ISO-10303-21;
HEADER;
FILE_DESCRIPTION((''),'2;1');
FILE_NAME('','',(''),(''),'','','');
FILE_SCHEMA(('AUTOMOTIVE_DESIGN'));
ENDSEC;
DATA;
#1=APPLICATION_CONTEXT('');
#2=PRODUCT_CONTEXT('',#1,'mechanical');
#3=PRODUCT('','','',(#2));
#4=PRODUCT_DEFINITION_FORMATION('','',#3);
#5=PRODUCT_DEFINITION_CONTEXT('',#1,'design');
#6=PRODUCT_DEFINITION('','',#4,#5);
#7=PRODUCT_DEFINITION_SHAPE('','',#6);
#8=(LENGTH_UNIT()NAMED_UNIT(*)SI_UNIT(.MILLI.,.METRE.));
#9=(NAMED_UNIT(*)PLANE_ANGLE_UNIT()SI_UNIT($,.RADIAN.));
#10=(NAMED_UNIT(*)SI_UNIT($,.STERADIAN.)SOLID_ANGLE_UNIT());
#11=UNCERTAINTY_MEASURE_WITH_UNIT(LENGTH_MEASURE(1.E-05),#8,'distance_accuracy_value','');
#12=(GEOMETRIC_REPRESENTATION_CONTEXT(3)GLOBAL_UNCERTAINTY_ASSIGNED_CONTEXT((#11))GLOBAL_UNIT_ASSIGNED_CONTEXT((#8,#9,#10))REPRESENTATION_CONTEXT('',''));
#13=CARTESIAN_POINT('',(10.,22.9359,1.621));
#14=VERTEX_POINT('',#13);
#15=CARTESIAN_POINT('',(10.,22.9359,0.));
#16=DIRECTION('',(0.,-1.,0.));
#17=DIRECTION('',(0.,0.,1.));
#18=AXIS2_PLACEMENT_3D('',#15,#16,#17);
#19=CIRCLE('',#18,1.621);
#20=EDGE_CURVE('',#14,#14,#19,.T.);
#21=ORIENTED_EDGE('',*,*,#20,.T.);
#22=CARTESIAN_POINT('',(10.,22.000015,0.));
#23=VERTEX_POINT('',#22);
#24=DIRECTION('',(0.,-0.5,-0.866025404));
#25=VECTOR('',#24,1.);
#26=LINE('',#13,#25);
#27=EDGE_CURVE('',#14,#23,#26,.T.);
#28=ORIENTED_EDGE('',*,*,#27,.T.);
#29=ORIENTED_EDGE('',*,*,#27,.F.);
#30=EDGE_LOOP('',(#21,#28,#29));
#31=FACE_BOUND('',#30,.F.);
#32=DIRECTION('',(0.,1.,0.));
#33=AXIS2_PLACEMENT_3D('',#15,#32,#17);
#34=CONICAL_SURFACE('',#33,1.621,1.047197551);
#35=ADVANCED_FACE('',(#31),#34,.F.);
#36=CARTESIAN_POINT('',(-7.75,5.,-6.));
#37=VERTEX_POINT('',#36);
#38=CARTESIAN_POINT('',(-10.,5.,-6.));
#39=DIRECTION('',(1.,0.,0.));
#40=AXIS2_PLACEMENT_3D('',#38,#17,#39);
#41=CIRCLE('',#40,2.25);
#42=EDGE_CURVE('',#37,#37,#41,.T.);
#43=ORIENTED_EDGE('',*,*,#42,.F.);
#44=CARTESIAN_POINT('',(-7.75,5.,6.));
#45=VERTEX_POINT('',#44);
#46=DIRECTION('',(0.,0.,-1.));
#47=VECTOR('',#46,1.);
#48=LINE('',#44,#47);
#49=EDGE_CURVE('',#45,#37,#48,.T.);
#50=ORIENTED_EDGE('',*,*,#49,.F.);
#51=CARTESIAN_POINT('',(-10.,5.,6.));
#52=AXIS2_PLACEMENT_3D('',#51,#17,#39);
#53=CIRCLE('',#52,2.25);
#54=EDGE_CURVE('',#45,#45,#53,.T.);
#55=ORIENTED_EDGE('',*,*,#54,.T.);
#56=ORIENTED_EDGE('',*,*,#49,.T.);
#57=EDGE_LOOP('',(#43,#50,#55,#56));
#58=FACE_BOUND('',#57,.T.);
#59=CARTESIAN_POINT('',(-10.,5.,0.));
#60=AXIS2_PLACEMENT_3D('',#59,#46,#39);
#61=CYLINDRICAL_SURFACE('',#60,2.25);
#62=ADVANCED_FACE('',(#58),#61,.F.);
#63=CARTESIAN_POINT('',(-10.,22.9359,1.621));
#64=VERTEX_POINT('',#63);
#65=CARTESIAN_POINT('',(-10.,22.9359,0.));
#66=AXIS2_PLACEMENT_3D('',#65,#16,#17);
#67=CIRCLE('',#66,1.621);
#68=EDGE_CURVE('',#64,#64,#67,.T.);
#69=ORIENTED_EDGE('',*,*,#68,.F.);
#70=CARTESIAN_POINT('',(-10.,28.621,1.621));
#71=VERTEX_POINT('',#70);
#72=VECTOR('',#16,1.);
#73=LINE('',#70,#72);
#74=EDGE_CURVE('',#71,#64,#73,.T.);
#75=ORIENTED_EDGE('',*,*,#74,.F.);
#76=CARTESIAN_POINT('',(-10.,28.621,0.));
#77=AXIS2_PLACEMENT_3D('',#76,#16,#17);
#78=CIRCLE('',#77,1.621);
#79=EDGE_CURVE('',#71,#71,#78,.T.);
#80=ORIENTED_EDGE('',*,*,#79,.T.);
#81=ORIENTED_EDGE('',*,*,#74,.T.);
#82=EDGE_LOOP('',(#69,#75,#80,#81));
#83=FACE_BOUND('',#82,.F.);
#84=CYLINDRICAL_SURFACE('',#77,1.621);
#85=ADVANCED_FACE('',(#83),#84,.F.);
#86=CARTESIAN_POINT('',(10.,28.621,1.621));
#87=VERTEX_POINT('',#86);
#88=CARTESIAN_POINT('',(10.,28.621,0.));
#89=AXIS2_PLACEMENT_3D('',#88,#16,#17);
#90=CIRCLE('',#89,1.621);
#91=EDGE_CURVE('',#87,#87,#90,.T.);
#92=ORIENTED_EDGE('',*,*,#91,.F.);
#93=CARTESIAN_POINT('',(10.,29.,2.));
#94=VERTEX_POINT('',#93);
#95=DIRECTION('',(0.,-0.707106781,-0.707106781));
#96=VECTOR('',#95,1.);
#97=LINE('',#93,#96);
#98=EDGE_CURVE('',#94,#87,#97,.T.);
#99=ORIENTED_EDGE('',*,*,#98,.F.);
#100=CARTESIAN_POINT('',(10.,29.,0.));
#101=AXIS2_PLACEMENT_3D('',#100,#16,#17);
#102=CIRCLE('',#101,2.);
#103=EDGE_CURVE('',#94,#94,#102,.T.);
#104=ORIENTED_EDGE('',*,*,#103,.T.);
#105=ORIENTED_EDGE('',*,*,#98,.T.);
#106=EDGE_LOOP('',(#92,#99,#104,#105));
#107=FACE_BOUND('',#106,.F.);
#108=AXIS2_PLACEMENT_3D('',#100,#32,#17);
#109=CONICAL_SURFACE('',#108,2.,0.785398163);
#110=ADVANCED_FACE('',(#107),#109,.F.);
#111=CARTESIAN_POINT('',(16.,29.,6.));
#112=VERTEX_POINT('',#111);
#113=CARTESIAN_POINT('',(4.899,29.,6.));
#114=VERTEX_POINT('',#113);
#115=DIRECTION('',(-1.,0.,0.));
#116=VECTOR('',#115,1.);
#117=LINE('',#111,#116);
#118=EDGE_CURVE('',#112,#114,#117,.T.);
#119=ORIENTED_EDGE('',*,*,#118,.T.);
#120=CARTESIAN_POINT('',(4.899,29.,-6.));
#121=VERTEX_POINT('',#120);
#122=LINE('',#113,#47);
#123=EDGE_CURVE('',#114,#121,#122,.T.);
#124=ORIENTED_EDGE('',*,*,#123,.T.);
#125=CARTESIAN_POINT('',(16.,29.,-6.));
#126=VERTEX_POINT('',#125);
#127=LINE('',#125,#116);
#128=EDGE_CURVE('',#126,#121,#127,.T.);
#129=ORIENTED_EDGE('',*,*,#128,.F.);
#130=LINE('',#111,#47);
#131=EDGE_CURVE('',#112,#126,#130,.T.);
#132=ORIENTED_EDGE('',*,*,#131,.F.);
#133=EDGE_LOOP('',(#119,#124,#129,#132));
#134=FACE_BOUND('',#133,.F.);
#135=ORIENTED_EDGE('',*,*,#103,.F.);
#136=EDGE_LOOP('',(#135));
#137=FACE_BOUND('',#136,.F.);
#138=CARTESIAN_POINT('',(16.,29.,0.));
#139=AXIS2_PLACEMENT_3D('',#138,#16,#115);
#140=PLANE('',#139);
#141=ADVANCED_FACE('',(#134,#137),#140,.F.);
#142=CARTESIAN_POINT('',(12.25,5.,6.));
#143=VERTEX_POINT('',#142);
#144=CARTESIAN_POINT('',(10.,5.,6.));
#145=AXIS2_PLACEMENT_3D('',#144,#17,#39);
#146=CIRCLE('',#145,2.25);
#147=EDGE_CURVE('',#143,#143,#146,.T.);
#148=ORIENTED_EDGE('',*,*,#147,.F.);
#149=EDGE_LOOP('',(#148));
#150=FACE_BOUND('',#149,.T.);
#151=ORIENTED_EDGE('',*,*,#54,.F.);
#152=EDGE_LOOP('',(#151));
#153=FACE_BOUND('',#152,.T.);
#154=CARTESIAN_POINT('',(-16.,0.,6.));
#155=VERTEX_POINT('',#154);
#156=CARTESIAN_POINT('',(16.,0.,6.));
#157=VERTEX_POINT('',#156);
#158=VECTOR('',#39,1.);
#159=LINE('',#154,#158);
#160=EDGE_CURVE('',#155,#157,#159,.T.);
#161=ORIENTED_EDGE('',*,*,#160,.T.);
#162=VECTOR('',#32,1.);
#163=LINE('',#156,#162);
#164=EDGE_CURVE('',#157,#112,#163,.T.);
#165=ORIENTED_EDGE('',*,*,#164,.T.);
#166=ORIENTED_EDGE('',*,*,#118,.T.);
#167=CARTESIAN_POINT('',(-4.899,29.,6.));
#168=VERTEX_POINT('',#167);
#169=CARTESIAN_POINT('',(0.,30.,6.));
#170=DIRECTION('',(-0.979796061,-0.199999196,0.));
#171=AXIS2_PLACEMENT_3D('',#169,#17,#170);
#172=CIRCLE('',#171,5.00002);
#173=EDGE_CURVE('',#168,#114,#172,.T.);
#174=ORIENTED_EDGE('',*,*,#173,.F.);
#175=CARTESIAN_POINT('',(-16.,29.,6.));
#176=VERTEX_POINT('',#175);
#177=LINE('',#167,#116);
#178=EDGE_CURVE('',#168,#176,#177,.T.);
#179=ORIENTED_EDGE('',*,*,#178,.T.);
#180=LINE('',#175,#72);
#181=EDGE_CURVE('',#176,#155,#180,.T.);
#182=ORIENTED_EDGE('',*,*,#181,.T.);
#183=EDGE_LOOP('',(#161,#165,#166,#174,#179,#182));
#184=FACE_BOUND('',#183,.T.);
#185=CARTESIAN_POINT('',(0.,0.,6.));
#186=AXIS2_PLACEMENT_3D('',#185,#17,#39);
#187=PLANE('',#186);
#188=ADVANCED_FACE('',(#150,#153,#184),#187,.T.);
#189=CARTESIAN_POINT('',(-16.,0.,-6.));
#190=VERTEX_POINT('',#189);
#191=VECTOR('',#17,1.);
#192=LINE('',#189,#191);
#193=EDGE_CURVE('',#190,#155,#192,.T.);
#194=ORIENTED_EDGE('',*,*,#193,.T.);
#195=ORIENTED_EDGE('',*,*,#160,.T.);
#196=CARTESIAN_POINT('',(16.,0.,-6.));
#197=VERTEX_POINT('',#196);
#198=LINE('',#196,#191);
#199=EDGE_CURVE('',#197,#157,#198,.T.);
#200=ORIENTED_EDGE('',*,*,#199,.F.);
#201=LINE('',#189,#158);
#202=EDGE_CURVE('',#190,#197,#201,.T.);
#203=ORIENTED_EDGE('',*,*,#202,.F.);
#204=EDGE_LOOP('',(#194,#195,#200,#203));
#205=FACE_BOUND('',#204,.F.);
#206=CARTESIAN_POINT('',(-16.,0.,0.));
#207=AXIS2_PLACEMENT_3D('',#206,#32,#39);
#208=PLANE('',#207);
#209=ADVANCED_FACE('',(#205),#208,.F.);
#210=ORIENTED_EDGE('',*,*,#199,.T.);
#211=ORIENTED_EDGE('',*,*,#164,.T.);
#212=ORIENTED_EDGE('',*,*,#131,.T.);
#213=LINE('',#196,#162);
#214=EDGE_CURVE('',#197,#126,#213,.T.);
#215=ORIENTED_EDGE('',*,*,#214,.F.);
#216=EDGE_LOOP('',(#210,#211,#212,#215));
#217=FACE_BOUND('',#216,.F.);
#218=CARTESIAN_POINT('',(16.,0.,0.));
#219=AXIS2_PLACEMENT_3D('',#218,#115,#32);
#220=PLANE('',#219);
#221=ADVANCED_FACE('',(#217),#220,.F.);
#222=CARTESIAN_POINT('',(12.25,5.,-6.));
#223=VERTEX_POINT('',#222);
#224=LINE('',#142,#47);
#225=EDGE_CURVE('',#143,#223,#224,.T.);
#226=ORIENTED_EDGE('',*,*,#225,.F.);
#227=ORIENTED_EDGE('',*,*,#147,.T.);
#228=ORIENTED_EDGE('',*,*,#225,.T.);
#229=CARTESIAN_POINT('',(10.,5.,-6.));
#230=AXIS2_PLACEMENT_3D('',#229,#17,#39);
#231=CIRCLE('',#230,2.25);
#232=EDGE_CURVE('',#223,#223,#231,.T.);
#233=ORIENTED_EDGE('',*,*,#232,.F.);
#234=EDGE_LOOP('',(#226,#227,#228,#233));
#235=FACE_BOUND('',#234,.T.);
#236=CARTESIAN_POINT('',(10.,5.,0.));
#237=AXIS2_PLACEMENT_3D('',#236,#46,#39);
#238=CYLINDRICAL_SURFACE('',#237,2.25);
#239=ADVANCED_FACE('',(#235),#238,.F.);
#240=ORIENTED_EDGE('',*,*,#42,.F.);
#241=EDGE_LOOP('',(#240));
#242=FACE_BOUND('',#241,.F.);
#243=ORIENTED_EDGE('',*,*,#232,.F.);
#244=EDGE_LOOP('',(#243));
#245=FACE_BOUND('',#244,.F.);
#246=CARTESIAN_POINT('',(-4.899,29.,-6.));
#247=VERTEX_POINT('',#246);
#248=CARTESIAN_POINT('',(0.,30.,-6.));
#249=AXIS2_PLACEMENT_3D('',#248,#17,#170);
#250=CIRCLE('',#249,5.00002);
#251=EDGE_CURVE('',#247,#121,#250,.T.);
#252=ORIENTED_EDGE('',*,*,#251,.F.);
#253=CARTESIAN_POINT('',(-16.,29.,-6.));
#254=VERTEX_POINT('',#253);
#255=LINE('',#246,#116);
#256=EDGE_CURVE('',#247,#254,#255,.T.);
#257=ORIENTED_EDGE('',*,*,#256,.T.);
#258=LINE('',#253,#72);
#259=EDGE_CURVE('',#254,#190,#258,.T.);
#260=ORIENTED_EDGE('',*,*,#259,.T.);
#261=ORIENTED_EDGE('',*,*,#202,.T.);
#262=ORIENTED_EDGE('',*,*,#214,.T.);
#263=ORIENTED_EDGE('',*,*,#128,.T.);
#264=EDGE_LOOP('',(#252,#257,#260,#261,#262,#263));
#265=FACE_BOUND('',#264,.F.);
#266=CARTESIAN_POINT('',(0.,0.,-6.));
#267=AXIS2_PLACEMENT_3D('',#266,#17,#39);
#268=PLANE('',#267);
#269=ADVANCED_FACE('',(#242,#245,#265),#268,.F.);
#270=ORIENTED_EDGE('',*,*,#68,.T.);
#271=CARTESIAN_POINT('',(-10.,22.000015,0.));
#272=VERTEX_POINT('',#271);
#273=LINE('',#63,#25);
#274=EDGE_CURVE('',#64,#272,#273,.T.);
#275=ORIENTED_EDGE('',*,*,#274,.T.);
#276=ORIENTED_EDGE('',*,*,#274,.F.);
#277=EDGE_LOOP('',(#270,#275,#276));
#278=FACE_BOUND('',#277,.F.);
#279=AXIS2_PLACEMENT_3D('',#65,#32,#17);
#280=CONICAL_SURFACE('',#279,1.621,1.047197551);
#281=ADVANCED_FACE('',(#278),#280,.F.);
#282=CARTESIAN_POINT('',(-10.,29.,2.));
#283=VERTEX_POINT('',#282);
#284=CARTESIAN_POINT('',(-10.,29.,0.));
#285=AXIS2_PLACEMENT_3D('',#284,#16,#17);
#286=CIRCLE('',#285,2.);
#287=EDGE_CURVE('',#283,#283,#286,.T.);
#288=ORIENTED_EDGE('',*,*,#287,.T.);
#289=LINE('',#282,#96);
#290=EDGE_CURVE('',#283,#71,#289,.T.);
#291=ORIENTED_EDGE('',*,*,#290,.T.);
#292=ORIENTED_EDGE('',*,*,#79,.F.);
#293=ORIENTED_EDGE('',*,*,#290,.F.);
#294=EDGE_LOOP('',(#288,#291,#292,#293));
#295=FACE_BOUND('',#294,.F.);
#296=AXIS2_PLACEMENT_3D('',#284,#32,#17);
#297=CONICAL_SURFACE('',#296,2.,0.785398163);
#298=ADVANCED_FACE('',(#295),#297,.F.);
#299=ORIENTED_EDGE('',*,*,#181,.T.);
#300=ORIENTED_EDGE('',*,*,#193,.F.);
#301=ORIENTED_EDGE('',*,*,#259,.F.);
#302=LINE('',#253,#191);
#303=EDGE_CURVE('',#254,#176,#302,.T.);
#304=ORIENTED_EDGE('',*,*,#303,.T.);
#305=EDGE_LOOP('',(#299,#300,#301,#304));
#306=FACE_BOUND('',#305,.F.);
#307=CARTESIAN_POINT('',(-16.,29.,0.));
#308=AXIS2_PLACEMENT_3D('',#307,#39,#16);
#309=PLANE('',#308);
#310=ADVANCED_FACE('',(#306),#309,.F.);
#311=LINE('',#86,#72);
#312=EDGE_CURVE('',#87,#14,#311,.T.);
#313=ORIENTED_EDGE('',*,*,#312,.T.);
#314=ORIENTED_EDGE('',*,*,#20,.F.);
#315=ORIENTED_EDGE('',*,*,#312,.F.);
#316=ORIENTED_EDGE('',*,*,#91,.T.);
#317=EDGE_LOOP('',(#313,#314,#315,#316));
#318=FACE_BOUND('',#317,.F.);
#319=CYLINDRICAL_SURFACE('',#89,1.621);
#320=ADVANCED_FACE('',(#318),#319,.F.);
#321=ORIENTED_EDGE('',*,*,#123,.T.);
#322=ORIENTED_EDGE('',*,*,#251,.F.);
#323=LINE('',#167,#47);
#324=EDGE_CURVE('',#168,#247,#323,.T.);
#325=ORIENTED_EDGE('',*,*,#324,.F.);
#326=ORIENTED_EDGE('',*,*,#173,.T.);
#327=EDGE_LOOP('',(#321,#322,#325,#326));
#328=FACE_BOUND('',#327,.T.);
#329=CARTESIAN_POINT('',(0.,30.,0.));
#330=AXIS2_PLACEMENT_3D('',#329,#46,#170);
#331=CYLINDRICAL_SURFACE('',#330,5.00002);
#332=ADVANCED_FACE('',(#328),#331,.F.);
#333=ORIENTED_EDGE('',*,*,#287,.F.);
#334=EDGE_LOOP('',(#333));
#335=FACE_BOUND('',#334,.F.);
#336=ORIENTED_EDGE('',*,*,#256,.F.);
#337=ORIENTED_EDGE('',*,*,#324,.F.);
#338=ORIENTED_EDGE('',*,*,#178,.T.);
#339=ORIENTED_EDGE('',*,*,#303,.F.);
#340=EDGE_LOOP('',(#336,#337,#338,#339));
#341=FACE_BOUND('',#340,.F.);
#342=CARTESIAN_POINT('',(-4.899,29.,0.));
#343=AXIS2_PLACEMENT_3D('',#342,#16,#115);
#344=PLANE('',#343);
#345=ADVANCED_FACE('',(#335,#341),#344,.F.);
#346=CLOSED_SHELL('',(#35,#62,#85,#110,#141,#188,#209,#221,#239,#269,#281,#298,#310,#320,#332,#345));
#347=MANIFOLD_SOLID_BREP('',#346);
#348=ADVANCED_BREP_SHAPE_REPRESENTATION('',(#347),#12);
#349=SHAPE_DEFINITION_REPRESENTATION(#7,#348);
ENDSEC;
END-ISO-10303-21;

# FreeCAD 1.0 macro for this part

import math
import FreeCAD as App
import Part
import Sketcher

V = App.Vector

doc = App.newDocument("Part")
body = doc.addObject("PartDesign::Body", "Body")

# Sketch on XY plane
sketch1 = body.newObject("Sketcher::SketchObject", "Sketch")
sketch1.AttachmentSupport = (doc.getObject("XY_Plane"), [""])
sketch1.MapMode = "FlatFace"
sketch1.addGeometry(Part.LineSegment(V(-4.899, 29, 0), V(-16, 29, 0)), False)
sketch1.addGeometry(Part.LineSegment(V(-16, 29, 0), V(-16, 0, 0)), False)
sketch1.addGeometry(Part.LineSegment(V(-16, 0, 0), V(16, 0, 0)), False)
sketch1.addGeometry(Part.LineSegment(V(16, 0, 0), V(16, 29, 0)), False)
sketch1.addGeometry(Part.LineSegment(V(16, 29, 0), V(4.899, 29, 0)), False)
sketch1.addGeometry(Part.ArcOfCircle(Part.Circle(V(0, 30, 0), V(0, 0, 1), 5.00002), math.radians(-168.463088), math.radians(-11.536912)), False)
sketch1.addConstraint(Sketcher.Constraint("Coincident", 0, 2, 1, 1))
sketch1.addConstraint(Sketcher.Constraint("Coincident", 1, 2, 2, 1))
sketch1.addConstraint(Sketcher.Constraint("Coincident", 2, 2, 3, 1))
sketch1.addConstraint(Sketcher.Constraint("Coincident", 3, 2, 4, 1))
sketch1.addConstraint(Sketcher.Constraint("Coincident", 4, 2, 5, 2))
sketch1.addConstraint(Sketcher.Constraint("Coincident", 5, 1, 0, 1))
sketch1.addConstraint(Sketcher.Constraint("Horizontal", 0))
sketch1.addConstraint(Sketcher.Constraint("Vertical", 1))
sketch1.addConstraint(Sketcher.Constraint("Horizontal", 2))
sketch1.addConstraint(Sketcher.Constraint("Vertical", 3))
sketch1.addConstraint(Sketcher.Constraint("Horizontal", 4))
sketch1.addConstraint(Sketcher.Constraint("Symmetric", 1, 2, 2, 2, -1, 1))
sketch1.addConstraint(Sketcher.Constraint("Symmetric", 4, 2, 5, 1, -2))
sketch1.addConstraint(Sketcher.Constraint("Radius", 5, 5.0))
sketch1.addConstraint(Sketcher.Constraint("DistanceX", 2, 1, 2, 2, 32.0))
sketch1.addConstraint(Sketcher.Constraint("DistanceY", 1, 2, 1, 1, 29.0))
sketch1.addConstraint(Sketcher.Constraint("DistanceY", -1, 1, 5, 3, 30.0))
pad1 = body.newObject("PartDesign::Pad", "Pad")
pad1.Profile = sketch1
pad1.Length = 12
pad1.Midplane = True

# Sketch on XZ plane
sketch2 = body.newObject("Sketcher::SketchObject", "Sketch001")
sketch2.AttachmentSupport = (doc.getObject("XZ_Plane"), [""])
sketch2.MapMode = "FlatFace"
sketch2.AttachmentOffset = App.Placement(V(0, 0, -29), App.Rotation())
sketch2.addGeometry(Part.Circle(V(10, 0, 0), V(0, 0, 1), 1.621), False)
sketch2.addConstraint(Sketcher.Constraint("PointOnObject", 0, 3, -1))
sketch2.addConstraint(Sketcher.Constraint("Diameter", 0, 3.242))
sketch2.addConstraint(Sketcher.Constraint("DistanceX", -1, 1, 0, 3, 10.0))
doc.recompute()
hole = body.newObject("PartDesign::Hole", "Hole")
hole.Profile = sketch2
hole.ThreadType = "None"
hole.Diameter = 3.242
hole.DepthType = "Dimension"
hole.Depth = 6.0641
hole.DrillPoint = "Angled"
hole.DrillPointAngle = 120
hole.HoleCutType = "Countersink"
hole.HoleCutDiameter = 4
hole.HoleCutCountersinkAngle = 90
hole.Reversed = True

# Sketch on XZ plane
sketch3 = body.newObject("Sketcher::SketchObject", "Sketch002")
sketch3.AttachmentSupport = (doc.getObject("XZ_Plane"), [""])
sketch3.MapMode = "FlatFace"
sketch3.AttachmentOffset = App.Placement(V(0, 0, -29), App.Rotation())
sketch3.addGeometry(Part.Circle(V(-10, 0, 0), V(0, 0, 1), 1.621), False)
sketch3.addConstraint(Sketcher.Constraint("PointOnObject", 0, 3, -1))
sketch3.addConstraint(Sketcher.Constraint("Diameter", 0, 3.242))
sketch3.addConstraint(Sketcher.Constraint("DistanceX", 0, 3, -1, 1, 10.0))
doc.recompute()
hole2 = body.newObject("PartDesign::Hole", "Hole001")
hole2.Profile = sketch3
hole2.ThreadType = "None"
hole2.Diameter = 3.242
hole2.DepthType = "Dimension"
hole2.Depth = 6.0641
hole2.DrillPoint = "Angled"
hole2.DrillPointAngle = 120
hole2.HoleCutType = "Countersink"
hole2.HoleCutDiameter = 4
hole2.HoleCutCountersinkAngle = 90
hole2.Reversed = True

# Sketch on XY plane
sketch4 = body.newObject("Sketcher::SketchObject", "Sketch003")
sketch4.AttachmentSupport = (doc.getObject("XY_Plane"), [""])
sketch4.MapMode = "FlatFace"
sketch4.addGeometry(Part.Circle(V(10, 5, 0), V(0, 0, 1), 2.25), False)
sketch4.addConstraint(Sketcher.Constraint("Diameter", 0, 4.5))
sketch4.addConstraint(Sketcher.Constraint("DistanceX", -1, 1, 0, 3, 10.0))
sketch4.addConstraint(Sketcher.Constraint("DistanceY", -1, 1, 0, 3, 5.0))
pocket1 = body.newObject("PartDesign::Pocket", "Pocket")
pocket1.Profile = sketch4
pocket1.Length = 12
pocket1.Midplane = True

# Sketch on XY plane
sketch5 = body.newObject("Sketcher::SketchObject", "Sketch004")
sketch5.AttachmentSupport = (doc.getObject("XY_Plane"), [""])
sketch5.MapMode = "FlatFace"
sketch5.addGeometry(Part.Circle(V(-10, 5, 0), V(0, 0, 1), 2.25), False)
sketch5.addConstraint(Sketcher.Constraint("Diameter", 0, 4.5))
sketch5.addConstraint(Sketcher.Constraint("DistanceX", 0, 3, -1, 1, 10.0))
sketch5.addConstraint(Sketcher.Constraint("DistanceY", -1, 1, 0, 3, 5.0))
pocket2 = body.newObject("PartDesign::Pocket", "Pocket001")
pocket2.Profile = sketch5
pocket2.Length = 12
pocket2.Midplane = True

doc.recompute()
